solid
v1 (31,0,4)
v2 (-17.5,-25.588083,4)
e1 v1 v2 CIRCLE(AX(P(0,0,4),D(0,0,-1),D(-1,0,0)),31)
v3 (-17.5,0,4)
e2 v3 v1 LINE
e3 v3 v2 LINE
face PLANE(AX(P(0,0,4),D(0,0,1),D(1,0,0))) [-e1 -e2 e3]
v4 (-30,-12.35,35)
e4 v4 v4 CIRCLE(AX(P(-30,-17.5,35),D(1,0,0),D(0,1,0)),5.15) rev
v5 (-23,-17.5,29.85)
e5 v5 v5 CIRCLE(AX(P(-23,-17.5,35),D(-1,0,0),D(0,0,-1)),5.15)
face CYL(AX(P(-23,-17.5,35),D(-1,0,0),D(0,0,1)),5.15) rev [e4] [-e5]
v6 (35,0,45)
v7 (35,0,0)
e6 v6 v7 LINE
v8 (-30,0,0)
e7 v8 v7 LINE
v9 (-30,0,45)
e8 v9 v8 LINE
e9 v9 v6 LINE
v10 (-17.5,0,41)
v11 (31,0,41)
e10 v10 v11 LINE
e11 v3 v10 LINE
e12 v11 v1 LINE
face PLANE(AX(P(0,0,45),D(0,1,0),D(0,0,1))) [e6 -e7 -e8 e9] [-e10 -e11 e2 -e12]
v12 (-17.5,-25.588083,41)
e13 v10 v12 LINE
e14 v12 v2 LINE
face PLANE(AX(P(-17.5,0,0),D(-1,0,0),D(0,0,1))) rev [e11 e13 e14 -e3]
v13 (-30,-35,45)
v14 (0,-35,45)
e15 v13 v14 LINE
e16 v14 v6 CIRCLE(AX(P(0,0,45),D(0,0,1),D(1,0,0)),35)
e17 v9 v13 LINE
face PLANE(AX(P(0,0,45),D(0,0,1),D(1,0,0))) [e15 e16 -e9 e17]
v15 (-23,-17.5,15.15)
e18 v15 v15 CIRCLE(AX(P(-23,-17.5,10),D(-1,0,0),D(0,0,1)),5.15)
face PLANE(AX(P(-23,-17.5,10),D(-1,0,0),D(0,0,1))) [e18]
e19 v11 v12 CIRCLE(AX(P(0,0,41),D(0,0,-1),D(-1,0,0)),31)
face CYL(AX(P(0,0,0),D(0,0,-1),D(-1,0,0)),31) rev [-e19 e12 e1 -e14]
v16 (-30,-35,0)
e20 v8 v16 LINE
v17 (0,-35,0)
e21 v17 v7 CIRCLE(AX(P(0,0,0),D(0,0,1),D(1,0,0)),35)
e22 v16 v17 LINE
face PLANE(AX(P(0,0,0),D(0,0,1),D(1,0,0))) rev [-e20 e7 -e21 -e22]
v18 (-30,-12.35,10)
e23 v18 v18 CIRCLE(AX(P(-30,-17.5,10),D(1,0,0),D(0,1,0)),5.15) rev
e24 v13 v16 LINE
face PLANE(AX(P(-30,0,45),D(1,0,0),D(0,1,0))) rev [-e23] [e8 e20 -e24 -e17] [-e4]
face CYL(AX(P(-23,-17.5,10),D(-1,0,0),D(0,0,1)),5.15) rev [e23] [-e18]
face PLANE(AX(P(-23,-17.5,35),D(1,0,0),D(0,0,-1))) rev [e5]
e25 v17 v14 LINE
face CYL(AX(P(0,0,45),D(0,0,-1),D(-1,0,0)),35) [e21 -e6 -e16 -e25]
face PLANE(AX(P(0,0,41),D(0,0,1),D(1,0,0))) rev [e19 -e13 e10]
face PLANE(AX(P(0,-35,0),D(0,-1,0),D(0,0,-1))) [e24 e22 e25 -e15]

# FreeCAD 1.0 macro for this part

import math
import FreeCAD as App
import Part
import Sketcher
from FreeCAD import Vector
Q = App.Units.Quantity


def add_polygon(sketch, points):
    """Adds a closed chain of lines whose ends are joined by coincident constraints."""
    first, n = sketch.GeometryCount, len(points)
    for a, b in zip(points, points[1:] + points[:1]):
        sketch.addGeometry(Part.LineSegment(App.Vector(*a, 0), App.Vector(*b, 0)), False)
    for i in range(n):
        sketch.addConstraint(Sketcher.Constraint("Coincident", first + i, 2, first + (i + 1) % n, 1))

doc = App.newDocument("Part")
body = doc.addObject("PartDesign::Body", "Body")

# Sketch on XY plane
sketch1 = body.newObject("Sketcher::SketchObject", "Sketch")
sketch1.AttachmentSupport = (doc.getObject("XY_Plane"), [""])
sketch1.MapMode = "FlatFace"
sketch1.addGeometry([
    Part.LineSegment(Vector(35, 0, 0), Vector(-35, 0, 0)),
    Part.ArcOfCircle(Part.Circle(Vector(0, 0, 0), Vector(0, 0, 1), 35), math.radians(180), math.radians(360)),
], False)
sketch1.addConstraint([
    Sketcher.Constraint("Coincident", 0, 1, 1, 2),
    Sketcher.Constraint("Coincident", 1, 1, 0, 2),
    Sketcher.Constraint("Horizontal", 0),
    Sketcher.Constraint("Coincident", 1, 3, -1, 1),
    Sketcher.Constraint("PointOnObject", 0, 1, -1),
    Sketcher.Constraint("Radius", 1, Q("35 mm")),
])
pad1 = body.newObject("PartDesign::Pad", "Pad")
pad1.Profile = sketch1
pad1.Length = 45

# Sketch on XZ plane
sketch2 = body.newObject("Sketcher::SketchObject", "Sketch001")
sketch2.AttachmentSupport = (doc.getObject("XZ_Plane"), [""])
sketch2.MapMode = "FlatFace"
add_polygon(sketch2, [(-31, 4), (-31, 41), (0, 41), (0, 4)])  # lines 0-3
sketch2.addConstraint([
    Sketcher.Constraint("Vertical", 0),
    Sketcher.Constraint("Horizontal", 1),
    Sketcher.Constraint("Vertical", 2),
    Sketcher.Constraint("Horizontal", 3),
    Sketcher.Constraint("PointOnObject", 1, 2, -2),
    Sketcher.Constraint("DistanceX", 1, 1, 1, 2, Q("31 mm")),
    Sketcher.Constraint("DistanceY", 0, 1, 0, 2, Q("37 mm")),
    Sketcher.Constraint("DistanceY", -1, 1, 0, 2, Q("41 mm")),
])
groove = body.newObject("PartDesign::Groove", "Groove")
groove.Profile = sketch2
groove.ReferenceAxis = (sketch2, ["V_Axis"])
groove.Angle = 360

# Sketch on XY plane
sketch3 = body.newObject("Sketcher::SketchObject", "Sketch002")
sketch3.AttachmentSupport = (doc.getObject("XY_Plane"), [""])
sketch3.MapMode = "FlatFace"
sketch3.addGeometry([
    Part.LineSegment(Vector(-35, 0, 0), Vector(-35, -35, 0)),  # 0
    Part.LineSegment(Vector(-35, -35, 0), Vector(0, -35, 0)),  # 1
    Part.ArcOfCircle(Part.Circle(Vector(0, 0, 0), Vector(0, 0, 1), 35), math.radians(-120), math.radians(-90)),  # 2
    Part.LineSegment(Vector(-18, -30, 0), Vector(-18, 0, 0)),  # 3
    Part.LineSegment(Vector(-18, 0, 0), Vector(-35, 0, 0)),  # 4
], False)
sketch3.addConstraint([
    Sketcher.Constraint("Coincident", 0, 2, 1, 1),
    Sketcher.Constraint("Tangent", 1, 2, 2, 2),
    Sketcher.Constraint("Coincident", 2, 1, 3, 1),
    Sketcher.Constraint("Coincident", 3, 2, 4, 1),
    Sketcher.Constraint("Coincident", 4, 2, 0, 1),
    Sketcher.Constraint("Vertical", 0),
    Sketcher.Constraint("Horizontal", 1),
    Sketcher.Constraint("Vertical", 3),
    Sketcher.Constraint("Horizontal", 4),
    Sketcher.Constraint("Coincident", 2, 3, -1, 1),
    Sketcher.Constraint("PointOnObject", 3, 2, -1),
    Sketcher.Constraint("Equal", 1, 0),
    Sketcher.Constraint("Radius", 2, Q("35 mm")),
    Sketcher.Constraint("DistanceX", 4, 2, 4, 1, Q("17.5 mm")),
])
pad2 = body.newObject("PartDesign::Pad", "Pad001")
pad2.Profile = sketch3
pad2.Length = 45

# Sketch on YZ plane
sketch4 = body.newObject("Sketcher::SketchObject", "Sketch003")
sketch4.AttachmentSupport = (doc.getObject("YZ_Plane"), [""])
sketch4.MapMode = "FlatFace"
sketch4.AttachmentOffset = App.Placement(Vector(0, 0, -35), App.Rotation())
sketch4.addGeometry([
    Part.Circle(Vector(-18, 10, 0), Vector(0, 0, 1), 5),
    Part.Circle(Vector(-18, 35, 0), Vector(0, 0, 1), 5),
], False)
sketch4.addConstraint([
    Sketcher.Constraint("Equal", 0, 1),
    Sketcher.Constraint("Vertical", 0, 3, 1, 3),
    Sketcher.Constraint("Diameter", 0, Q("10.3 mm")),
    Sketcher.Constraint("DistanceY", -1, 1, 0, 3, Q("10 mm")),
    Sketcher.Constraint("DistanceY", -1, 1, 1, 3, Q("35 mm")),
    Sketcher.Constraint("DistanceX", 0, 3, -1, 1, Q("17.5 mm")),
])
pocket1 = body.newObject("PartDesign::Pocket", "Pocket")
pocket1.Profile = sketch4
pocket1.Length = 12
pocket1.Reversed = True

# Sketch on XY plane
sketch5 = body.newObject("Sketcher::SketchObject", "Sketch004")
sketch5.AttachmentSupport = (doc.getObject("XY_Plane"), [""])
sketch5.MapMode = "FlatFace"
add_polygon(sketch5, [(-30, 0), (-30, -35), (-35, -35), (-35, 0)])  # lines 0-3
sketch5.addConstraint([
    Sketcher.Constraint("Vertical", 0),
    Sketcher.Constraint("Horizontal", 1),
    Sketcher.Constraint("Vertical", 2),
    Sketcher.Constraint("Horizontal", 3),
    Sketcher.Constraint("PointOnObject", 2, 2, -1),
    Sketcher.Constraint("DistanceX", 1, 2, 1, 1, Q("5 mm")),
    Sketcher.Constraint("DistanceY", 0, 2, 0, 1, Q("35 mm")),
    Sketcher.Constraint("DistanceX", 0, 2, -1, 1, Q("30 mm")),
])
pocket2 = body.newObject("PartDesign::Pocket", "Pocket001")
pocket2.Profile = sketch5
pocket2.Type = "ThroughAll"
pocket2.Reversed = True

doc.recompute()
